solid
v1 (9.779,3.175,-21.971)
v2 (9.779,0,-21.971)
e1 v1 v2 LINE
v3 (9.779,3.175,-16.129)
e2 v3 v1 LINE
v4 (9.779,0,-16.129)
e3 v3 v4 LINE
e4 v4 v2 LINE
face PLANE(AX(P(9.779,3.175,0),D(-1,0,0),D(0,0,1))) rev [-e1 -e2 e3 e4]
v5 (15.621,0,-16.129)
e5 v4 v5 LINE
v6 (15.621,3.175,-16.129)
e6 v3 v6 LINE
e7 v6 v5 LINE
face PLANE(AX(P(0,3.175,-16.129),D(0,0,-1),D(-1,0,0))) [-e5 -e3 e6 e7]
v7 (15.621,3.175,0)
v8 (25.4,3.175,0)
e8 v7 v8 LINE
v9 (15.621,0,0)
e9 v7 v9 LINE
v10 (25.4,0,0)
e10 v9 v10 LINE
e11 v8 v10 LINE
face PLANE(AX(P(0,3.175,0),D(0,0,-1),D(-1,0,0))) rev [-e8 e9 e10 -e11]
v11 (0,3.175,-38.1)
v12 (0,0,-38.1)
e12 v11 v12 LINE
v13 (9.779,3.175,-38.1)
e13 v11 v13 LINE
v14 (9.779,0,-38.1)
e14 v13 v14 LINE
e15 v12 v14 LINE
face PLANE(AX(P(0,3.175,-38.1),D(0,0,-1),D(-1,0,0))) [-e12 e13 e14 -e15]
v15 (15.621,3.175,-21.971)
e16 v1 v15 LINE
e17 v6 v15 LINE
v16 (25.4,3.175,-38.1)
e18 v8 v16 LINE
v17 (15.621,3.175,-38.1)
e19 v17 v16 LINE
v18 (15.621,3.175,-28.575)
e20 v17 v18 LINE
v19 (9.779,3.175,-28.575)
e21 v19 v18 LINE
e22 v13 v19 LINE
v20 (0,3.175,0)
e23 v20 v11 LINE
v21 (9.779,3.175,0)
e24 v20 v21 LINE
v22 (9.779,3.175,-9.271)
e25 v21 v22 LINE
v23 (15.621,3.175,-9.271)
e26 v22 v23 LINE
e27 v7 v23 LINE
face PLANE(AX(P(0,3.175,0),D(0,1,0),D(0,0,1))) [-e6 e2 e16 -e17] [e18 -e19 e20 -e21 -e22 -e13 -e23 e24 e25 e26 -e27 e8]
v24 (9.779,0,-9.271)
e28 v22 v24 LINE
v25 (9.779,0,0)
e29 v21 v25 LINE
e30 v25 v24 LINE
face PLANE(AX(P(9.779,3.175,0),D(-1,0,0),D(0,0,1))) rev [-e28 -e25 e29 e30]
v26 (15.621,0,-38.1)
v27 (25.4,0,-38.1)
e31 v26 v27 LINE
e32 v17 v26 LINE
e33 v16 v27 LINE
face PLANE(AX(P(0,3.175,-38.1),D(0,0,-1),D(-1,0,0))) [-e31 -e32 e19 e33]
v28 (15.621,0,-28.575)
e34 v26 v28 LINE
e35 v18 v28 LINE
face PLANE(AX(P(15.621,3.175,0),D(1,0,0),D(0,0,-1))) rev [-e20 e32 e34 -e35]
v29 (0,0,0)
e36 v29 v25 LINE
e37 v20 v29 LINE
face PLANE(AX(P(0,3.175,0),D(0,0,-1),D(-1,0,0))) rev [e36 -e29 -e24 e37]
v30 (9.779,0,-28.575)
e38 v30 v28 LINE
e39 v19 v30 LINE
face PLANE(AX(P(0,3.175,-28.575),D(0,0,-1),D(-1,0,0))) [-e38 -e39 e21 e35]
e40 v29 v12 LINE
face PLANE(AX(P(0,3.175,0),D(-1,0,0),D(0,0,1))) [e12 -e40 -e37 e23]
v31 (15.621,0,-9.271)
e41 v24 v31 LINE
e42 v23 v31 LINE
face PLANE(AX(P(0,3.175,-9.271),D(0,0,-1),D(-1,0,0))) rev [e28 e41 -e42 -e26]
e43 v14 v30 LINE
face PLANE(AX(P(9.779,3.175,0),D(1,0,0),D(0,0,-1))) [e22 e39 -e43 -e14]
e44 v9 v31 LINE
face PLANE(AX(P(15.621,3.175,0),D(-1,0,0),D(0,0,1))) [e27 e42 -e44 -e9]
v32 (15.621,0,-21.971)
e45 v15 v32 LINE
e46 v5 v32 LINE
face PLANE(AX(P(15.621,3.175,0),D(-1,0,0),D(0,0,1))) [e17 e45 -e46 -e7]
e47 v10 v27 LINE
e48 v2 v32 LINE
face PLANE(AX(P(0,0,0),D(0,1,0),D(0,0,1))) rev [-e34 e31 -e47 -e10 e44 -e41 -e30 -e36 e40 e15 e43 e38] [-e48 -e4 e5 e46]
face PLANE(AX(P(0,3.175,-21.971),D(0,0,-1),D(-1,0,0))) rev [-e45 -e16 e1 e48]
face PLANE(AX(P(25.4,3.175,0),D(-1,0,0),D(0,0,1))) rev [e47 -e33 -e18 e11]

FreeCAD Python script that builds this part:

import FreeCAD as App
import Part
import Sketcher
Q = App.Units.Quantity

doc = App.newDocument("Part")
body = doc.addObject("PartDesign::Body", "Body")

sketch1 = body.newObject("Sketcher::SketchObject", "Sketch")
sketch1.AttachmentSupport = (doc.getObject("XZ_Plane"), [""])
sketch1.MapMode = "FlatFace"
sketch1.addGeometry([
    Part.LineSegment(App.Vector(9.779, -38.1, 0), App.Vector(0, -38.1, 0)),
    Part.LineSegment(App.Vector(0, -38.1, 0), App.Vector(0, 0, 0)),
    Part.LineSegment(App.Vector(0, 0, 0), App.Vector(9.779, 0, 0)),
    Part.LineSegment(App.Vector(9.779, 0, 0), App.Vector(9.779, -9.271, 0)),
    Part.LineSegment(App.Vector(9.779, -9.271, 0), App.Vector(15.621, -9.271, 0)),
    Part.LineSegment(App.Vector(15.621, -9.271, 0), App.Vector(15.621, 0, 0)),
    Part.LineSegment(App.Vector(15.621, 0, 0), App.Vector(25.4, 0, 0)),
    Part.LineSegment(App.Vector(25.4, 0, 0), App.Vector(25.4, -38.1, 0)),
    Part.LineSegment(App.Vector(25.4, -38.1, 0), App.Vector(15.621, -38.1, 0)),
    Part.LineSegment(App.Vector(15.621, -38.1, 0), App.Vector(15.621, -28.575, 0)),
    Part.LineSegment(App.Vector(15.621, -28.575, 0), App.Vector(9.779, -28.575, 0)),
    Part.LineSegment(App.Vector(9.779, -28.575, 0), App.Vector(9.779, -38.1, 0)),
    Part.LineSegment(App.Vector(15.621, -16.129, 0), App.Vector(9.779, -16.129, 0)),
    Part.LineSegment(App.Vector(9.779, -16.129, 0), App.Vector(9.779, -21.971, 0)),
    Part.LineSegment(App.Vector(9.779, -21.971, 0), App.Vector(15.621, -21.971, 0)),
    Part.LineSegment(App.Vector(15.621, -21.971, 0), App.Vector(15.621, -16.129, 0)),
], False)
sketch1.addConstraint([
    Sketcher.Constraint("Coincident", 0, 2, 1, 1),
    Sketcher.Constraint("Coincident", 1, 2, 2, 1),
    Sketcher.Constraint("Coincident", 2, 2, 3, 1),
    Sketcher.Constraint("Coincident", 3, 2, 4, 1),
    Sketcher.Constraint("Coincident", 4, 2, 5, 1),
    Sketcher.Constraint("Coincident", 5, 2, 6, 1),
    Sketcher.Constraint("Coincident", 6, 2, 7, 1),
    Sketcher.Constraint("Coincident", 7, 2, 8, 1),
    Sketcher.Constraint("Coincident", 8, 2, 9, 1),
    Sketcher.Constraint("Coincident", 9, 2, 10, 1),
    Sketcher.Constraint("Coincident", 10, 2, 11, 1),
    Sketcher.Constraint("Coincident", 11, 2, 0, 1),
    Sketcher.Constraint("Coincident", 12, 2, 13, 1),
    Sketcher.Constraint("Coincident", 13, 2, 14, 1),
    Sketcher.Constraint("Coincident", 14, 2, 15, 1),
    Sketcher.Constraint("Coincident", 15, 2, 12, 1),
    Sketcher.Constraint("Horizontal", 0),
    Sketcher.Constraint("Vertical", 1),
    Sketcher.Constraint("Horizontal", 2),
    Sketcher.Constraint("Vertical", 3),
    Sketcher.Constraint("Horizontal", 4),
    Sketcher.Constraint("Vertical", 5),
    Sketcher.Constraint("Horizontal", 6),
    Sketcher.Constraint("Vertical", 7),
    Sketcher.Constraint("Horizontal", 8),
    Sketcher.Constraint("Vertical", 9),
    Sketcher.Constraint("Horizontal", 10),
    Sketcher.Constraint("Vertical", 11),
    Sketcher.Constraint("Horizontal", 12),
    Sketcher.Constraint("Vertical", 13),
    Sketcher.Constraint("Horizontal", 14),
    Sketcher.Constraint("Vertical", 15),
    Sketcher.Constraint("Coincident", 1, 2, -1, 1),
    Sketcher.Constraint("PointOnObject", 5, 2, -1),
    Sketcher.Constraint("Horizontal", 0, 2, 7, 2),
    Sketcher.Constraint("Vertical", 5, 2, 8, 2),
    Sketcher.Constraint("Vertical", 3, 2, 10, 2),
    Sketcher.Constraint("Vertical", 11, 2, 12, 2),
    Sketcher.Constraint("Vertical", 9, 2, 14, 2),
    Sketcher.Constraint("Equal", 2, 6),
    Sketcher.Constraint("Equal", 14, 13),
    Sketcher.Constraint("DistanceY", 1, 1, 1, 2, Q("1.5 in")),
    Sketcher.Constraint("DistanceX", -1, 1, 6, 2, Q("1 in")),
    Sketcher.Constraint("DistanceX", 4, 1, 4, 2, Q("0.23 in")),
    Sketcher.Constraint("DistanceY", 13, 2, 3, 2, Q("0.5 in")),
    Sketcher.Constraint("DistanceY", 3, 2, 3, 1, Q("0.365 in")),
    Sketcher.Constraint("DistanceY", 9, 1, 9, 2, Q("0.375 in")),
])
pad1 = body.newObject("PartDesign::Pad", "Pad")
pad1.Profile = sketch1
pad1.Length = Q("0.125 in")
pad1.Reversed = True

doc.recompute()
